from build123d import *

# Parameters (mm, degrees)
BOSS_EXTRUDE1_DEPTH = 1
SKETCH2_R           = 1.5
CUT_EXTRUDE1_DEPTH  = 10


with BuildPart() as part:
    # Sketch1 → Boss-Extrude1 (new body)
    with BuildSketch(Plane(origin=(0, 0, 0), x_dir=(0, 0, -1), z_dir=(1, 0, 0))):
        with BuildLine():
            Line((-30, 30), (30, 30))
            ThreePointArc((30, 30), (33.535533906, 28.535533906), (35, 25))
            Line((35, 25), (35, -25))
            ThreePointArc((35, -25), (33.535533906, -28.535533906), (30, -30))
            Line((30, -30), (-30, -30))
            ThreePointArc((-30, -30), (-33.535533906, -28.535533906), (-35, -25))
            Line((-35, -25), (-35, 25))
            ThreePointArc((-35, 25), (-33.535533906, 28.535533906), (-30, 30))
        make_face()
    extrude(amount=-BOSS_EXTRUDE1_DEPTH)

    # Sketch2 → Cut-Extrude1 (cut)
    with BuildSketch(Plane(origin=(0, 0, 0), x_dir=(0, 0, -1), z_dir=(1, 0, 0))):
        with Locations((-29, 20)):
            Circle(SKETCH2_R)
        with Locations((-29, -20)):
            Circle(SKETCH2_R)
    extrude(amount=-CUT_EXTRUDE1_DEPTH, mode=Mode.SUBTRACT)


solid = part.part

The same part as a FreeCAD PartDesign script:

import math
import FreeCAD as App
import Part
import Sketcher

V = App.Vector

doc = App.newDocument("Part")
body = doc.addObject("PartDesign::Body", "Body")

sketch1 = body.newObject("Sketcher::SketchObject", "Sketch")
sketch1.AttachmentSupport = (doc.getObject("YZ_Plane"), [""])
sketch1.MapMode = "FlatFace"
sketch1.addGeometry([
    Part.LineSegment(V(30, -30, 0), V(30, 30, 0)),
    Part.ArcOfCircle(Part.Circle(V(25, 30, 0), V(0, 0, 1), 5), math.radians(0), math.radians(90)),
    Part.LineSegment(V(25, 35, 0), V(-25, 35, 0)),
    Part.ArcOfCircle(Part.Circle(V(-25, 30, 0), V(0, 0, 1), 5), math.radians(90), math.radians(180)),
    Part.LineSegment(V(-30, 30, 0), V(-30, -30, 0)),
    Part.ArcOfCircle(Part.Circle(V(-25, -30, 0), V(0, 0, 1), 5), math.radians(180), math.radians(270)),
    Part.LineSegment(V(-25, -35, 0), V(25, -35, 0)),
    Part.ArcOfCircle(Part.Circle(V(25, -30, 0), V(0, 0, 1), 5), math.radians(-90), math.radians(0)),
], False)
sketch1.addConstraint([
    Sketcher.Constraint("Tangent", 0, 2, 1, 1),
    Sketcher.Constraint("Tangent", 1, 2, 2, 1),
    Sketcher.Constraint("Tangent", 2, 2, 3, 1),
    Sketcher.Constraint("Tangent", 3, 2, 4, 1),
    Sketcher.Constraint("Tangent", 4, 2, 5, 1),
    Sketcher.Constraint("Tangent", 5, 2, 6, 1),
    Sketcher.Constraint("Tangent", 6, 2, 7, 1),
    Sketcher.Constraint("Tangent", 7, 2, 0, 1),
    Sketcher.Constraint("Vertical", 0),
    Sketcher.Constraint("Horizontal", 2),
    Sketcher.Constraint("Vertical", 4),
    Sketcher.Constraint("Horizontal", 6),
    Sketcher.Constraint("Equal", 1, 3),
    Sketcher.Constraint("Equal", 3, 5),
    Sketcher.Constraint("Equal", 5, 7),
    Sketcher.Constraint("Symmetric", 1, 3, 5, 3, -1, 1),
    Sketcher.Constraint("Radius", 1, 5.0),
    Sketcher.Constraint("DistanceX", 2, 2, 2, 1, 50.0),
    Sketcher.Constraint("DistanceY", 0, 1, 0, 2, 60.0),
])
pad1 = body.newObject("PartDesign::Pad", "Pad")
pad1.Profile = sketch1
pad1.Length = 1
pad1.Reversed = True

sketch2 = body.newObject("Sketcher::SketchObject", "Sketch001")
sketch2.AttachmentSupport = (doc.getObject("YZ_Plane"), [""])
sketch2.MapMode = "FlatFace"
sketch2.addGeometry([
    Part.Circle(V(20, 29, 0), V(0, 0, 1), 1.5),
    Part.Circle(V(-20, 29, 0), V(0, 0, 1), 1.5),
], False)
sketch2.addConstraint([
    Sketcher.Constraint("Equal", 0, 1),
    Sketcher.Constraint("Symmetric", 0, 3, 1, 3, -2),
    Sketcher.Constraint("Diameter", 0, 3.0),
    Sketcher.Constraint("DistanceX", -1, 1, 0, 3, 20.0),
    Sketcher.Constraint("DistanceY", -1, 1, 0, 3, 29.0),
])
pocket1 = body.newObject("PartDesign::Pocket", "Pocket")
pocket1.Profile = sketch2
pocket1.Length = 10

doc.recompute()
